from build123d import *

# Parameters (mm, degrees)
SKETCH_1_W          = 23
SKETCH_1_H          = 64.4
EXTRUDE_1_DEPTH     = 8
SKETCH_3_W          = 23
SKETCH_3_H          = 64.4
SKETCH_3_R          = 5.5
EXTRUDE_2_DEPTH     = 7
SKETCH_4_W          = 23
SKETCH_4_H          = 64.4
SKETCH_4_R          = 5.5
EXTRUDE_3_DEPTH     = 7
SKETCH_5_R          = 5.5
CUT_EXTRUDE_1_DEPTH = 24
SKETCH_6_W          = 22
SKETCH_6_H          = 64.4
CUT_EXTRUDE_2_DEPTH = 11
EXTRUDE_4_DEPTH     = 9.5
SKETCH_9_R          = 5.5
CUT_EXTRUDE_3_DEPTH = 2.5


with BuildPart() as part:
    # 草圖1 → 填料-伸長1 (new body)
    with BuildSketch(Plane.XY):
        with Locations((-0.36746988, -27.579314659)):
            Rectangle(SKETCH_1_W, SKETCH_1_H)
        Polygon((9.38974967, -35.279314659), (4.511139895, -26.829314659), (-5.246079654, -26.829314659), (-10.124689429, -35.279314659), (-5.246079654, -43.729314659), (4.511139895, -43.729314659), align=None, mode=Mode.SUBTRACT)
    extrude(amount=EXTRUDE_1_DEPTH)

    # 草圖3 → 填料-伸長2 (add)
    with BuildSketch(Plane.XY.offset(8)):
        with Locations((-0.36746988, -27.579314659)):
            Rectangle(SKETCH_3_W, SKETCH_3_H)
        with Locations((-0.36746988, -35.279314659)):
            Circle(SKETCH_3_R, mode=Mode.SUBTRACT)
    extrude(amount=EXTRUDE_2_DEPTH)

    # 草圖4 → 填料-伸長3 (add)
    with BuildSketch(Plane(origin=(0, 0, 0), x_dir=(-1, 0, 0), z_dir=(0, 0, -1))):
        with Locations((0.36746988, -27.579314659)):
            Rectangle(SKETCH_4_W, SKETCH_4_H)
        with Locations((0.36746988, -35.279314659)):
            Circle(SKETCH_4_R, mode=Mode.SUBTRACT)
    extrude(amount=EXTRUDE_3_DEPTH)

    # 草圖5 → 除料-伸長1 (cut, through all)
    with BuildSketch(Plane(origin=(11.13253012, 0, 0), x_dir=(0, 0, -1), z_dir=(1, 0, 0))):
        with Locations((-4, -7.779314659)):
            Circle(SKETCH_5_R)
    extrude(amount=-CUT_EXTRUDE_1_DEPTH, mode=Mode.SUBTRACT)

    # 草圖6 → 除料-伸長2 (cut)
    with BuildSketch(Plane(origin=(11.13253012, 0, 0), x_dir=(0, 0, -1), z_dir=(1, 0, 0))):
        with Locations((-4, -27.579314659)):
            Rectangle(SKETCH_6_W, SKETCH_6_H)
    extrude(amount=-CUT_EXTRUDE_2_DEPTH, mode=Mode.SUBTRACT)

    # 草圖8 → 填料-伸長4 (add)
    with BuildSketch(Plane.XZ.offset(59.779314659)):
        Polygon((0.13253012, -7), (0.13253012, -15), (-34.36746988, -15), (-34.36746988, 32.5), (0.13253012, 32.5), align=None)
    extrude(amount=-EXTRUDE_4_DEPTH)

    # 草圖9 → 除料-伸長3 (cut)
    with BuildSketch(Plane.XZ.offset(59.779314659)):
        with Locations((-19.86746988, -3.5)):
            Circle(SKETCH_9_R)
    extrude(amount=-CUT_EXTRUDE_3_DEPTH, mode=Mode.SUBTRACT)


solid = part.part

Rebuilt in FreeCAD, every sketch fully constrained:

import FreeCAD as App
import Part
import Sketcher
Q = App.Units.Quantity

doc = App.newDocument("Part")
body = doc.addObject("PartDesign::Body", "Body")

# Sketch on XY plane
sketch1 = body.newObject("Sketcher::SketchObject", "Sketch")
sketch1.AttachmentSupport = (doc.getObject("XY_Plane"), [""])
sketch1.MapMode = "FlatFace"
sketch1.addGeometry(Part.LineSegment(App.Vector(-12, 5, 0), App.Vector(-12, -60, 0)), False)
sketch1.addGeometry(Part.LineSegment(App.Vector(-12, -60, 0), App.Vector(11, -60, 0)), False)
sketch1.addGeometry(Part.LineSegment(App.Vector(11, -60, 0), App.Vector(11, 5, 0)), False)
sketch1.addGeometry(Part.LineSegment(App.Vector(11, 5, 0), App.Vector(-12, 5, 0)), False)
sketch1.addGeometry(Part.LineSegment(App.Vector(5, -27, 0), App.Vector(9, -35, 0)), False)
sketch1.addGeometry(Part.LineSegment(App.Vector(9, -35, 0), App.Vector(5, -44, 0)), False)
sketch1.addGeometry(Part.LineSegment(App.Vector(5, -44, 0), App.Vector(-5, -44, 0)), False)
sketch1.addGeometry(Part.LineSegment(App.Vector(-5, -44, 0), App.Vector(-10, -35, 0)), False)
sketch1.addGeometry(Part.LineSegment(App.Vector(-10, -35, 0), App.Vector(-5, -27, 0)), False)
sketch1.addGeometry(Part.LineSegment(App.Vector(-5, -27, 0), App.Vector(5, -27, 0)), False)
sketch1.addConstraint(Sketcher.Constraint("Coincident", 0, 2, 1, 1))
sketch1.addConstraint(Sketcher.Constraint("Coincident", 1, 2, 2, 1))
sketch1.addConstraint(Sketcher.Constraint("Coincident", 2, 2, 3, 1))
sketch1.addConstraint(Sketcher.Constraint("Coincident", 3, 2, 0, 1))
sketch1.addConstraint(Sketcher.Constraint("Coincident", 4, 2, 5, 1))
sketch1.addConstraint(Sketcher.Constraint("Coincident", 5, 2, 6, 1))
sketch1.addConstraint(Sketcher.Constraint("Coincident", 6, 2, 7, 1))
sketch1.addConstraint(Sketcher.Constraint("Coincident", 7, 2, 8, 1))
sketch1.addConstraint(Sketcher.Constraint("Coincident", 8, 2, 9, 1))
sketch1.addConstraint(Sketcher.Constraint("Coincident", 9, 2, 4, 1))
sketch1.addConstraint(Sketcher.Constraint("Vertical", 0))
sketch1.addConstraint(Sketcher.Constraint("Horizontal", 1))
sketch1.addConstraint(Sketcher.Constraint("Vertical", 2))
sketch1.addConstraint(Sketcher.Constraint("Horizontal", 3))
sketch1.addConstraint(Sketcher.Constraint("Horizontal", 6))
sketch1.addConstraint(Sketcher.Constraint("Horizontal", 9))
sketch1.addConstraint(Sketcher.Constraint("Parallel", 4, 7))
sketch1.addConstraint(Sketcher.Constraint("Parallel", 5, 8))
sketch1.addConstraint(Sketcher.Constraint("Horizontal", 4, 2, 7, 2))
sketch1.addConstraint(Sketcher.Constraint("Vertical", 6, 2, 8, 2))
sketch1.addConstraint(Sketcher.Constraint("Vertical", 5, 2, 9, 2))
sketch1.addConstraint(Sketcher.Constraint("DistanceX", 1, 1, 1, 2, 23.0))
sketch1.addConstraint(Sketcher.Constraint("Angle", 4, Q("-60 deg")))
sketch1.addConstraint(Sketcher.Constraint("DistanceY", 0, 2, 0, 1, 64.4))
sketch1.addConstraint(Sketcher.Constraint("DistanceY", 1, 2, 4, 2, 24.5))
sketch1.addConstraint(Sketcher.Constraint("DistanceY", 6, 2, 8, 2, 16.9))
sketch1.addConstraint(Sketcher.Constraint("DistanceX", 6, 2, 6, 1, 9.75722))
sketch1.addConstraint(Sketcher.Constraint("DistanceX", 0, 2, -1, 1, 11.86747))
sketch1.addConstraint(Sketcher.Constraint("DistanceX", -1, 1, 4, 2, 9.38975))
sketch1.addConstraint(Sketcher.Constraint("DistanceY", 0, 2, -1, 1, 59.779315))
pad1 = body.newObject("PartDesign::Pad", "Pad")
pad1.Profile = sketch1
pad1.Length = 8

# Sketch on XY plane
sketch2 = body.newObject("Sketcher::SketchObject", "Sketch001")
sketch2.AttachmentSupport = (doc.getObject("XY_Plane"), [""])
sketch2.MapMode = "FlatFace"
sketch2.AttachmentOffset = App.Placement(App.Vector(0, 0, 8), App.Rotation())
sketch2.addGeometry(Part.LineSegment(App.Vector(-12, 5, 0), App.Vector(-12, -60, 0)), False)
sketch2.addGeometry(Part.LineSegment(App.Vector(-12, -60, 0), App.Vector(11, -60, 0)), False)
sketch2.addGeometry(Part.LineSegment(App.Vector(11, -60, 0), App.Vector(11, 5, 0)), False)
sketch2.addGeometry(Part.LineSegment(App.Vector(11, 5, 0), App.Vector(-12, 5, 0)), False)
sketch2.addGeometry(Part.Circle(App.Vector(0, -35, 0), App.Vector(0, 0, 1), 6), False)
sketch2.addConstraint(Sketcher.Constraint("Coincident", 0, 2, 1, 1))
sketch2.addConstraint(Sketcher.Constraint("Coincident", 1, 2, 2, 1))
sketch2.addConstraint(Sketcher.Constraint("Coincident", 2, 2, 3, 1))
sketch2.addConstraint(Sketcher.Constraint("Coincident", 3, 2, 0, 1))
sketch2.addConstraint(Sketcher.Constraint("Vertical", 0))
sketch2.addConstraint(Sketcher.Constraint("Horizontal", 1))
sketch2.addConstraint(Sketcher.Constraint("Vertical", 2))
sketch2.addConstraint(Sketcher.Constraint("Horizontal", 3))
sketch2.addConstraint(Sketcher.Constraint("Diameter", 4, 11.0))
sketch2.addConstraint(Sketcher.Constraint("DistanceX", 1, 1, 1, 2, 23.0))
sketch2.addConstraint(Sketcher.Constraint("DistanceY", 0, 2, 0, 1, 64.4))
sketch2.addConstraint(Sketcher.Constraint("DistanceX", 0, 2, 4, 3, 11.5))
sketch2.addConstraint(Sketcher.Constraint("DistanceY", 0, 2, 4, 3, 24.5))
sketch2.addConstraint(Sketcher.Constraint("DistanceX", 4, 3, -1, 1, 0.36747))
sketch2.addConstraint(Sketcher.Constraint("DistanceY", 4, 3, -1, 1, 35.279315))
pad2 = body.newObject("PartDesign::Pad", "Pad001")
pad2.Profile = sketch2
pad2.Length = 7

# Sketch on XY plane
sketch3 = body.newObject("Sketcher::SketchObject", "Sketch002")
sketch3.AttachmentSupport = (doc.getObject("XY_Plane"), [""])
sketch3.MapMode = "FlatFace"
sketch3.addGeometry(Part.LineSegment(App.Vector(11, 5, 0), App.Vector(11, -60, 0)), False)
sketch3.addGeometry(Part.LineSegment(App.Vector(11, -60, 0), App.Vector(-12, -60, 0)), False)
sketch3.addGeometry(Part.LineSegment(App.Vector(-12, -60, 0), App.Vector(-12, 5, 0)), False)
sketch3.addGeometry(Part.LineSegment(App.Vector(-12, 5, 0), App.Vector(11, 5, 0)), False)
sketch3.addGeometry(Part.Circle(App.Vector(0, -35, 0), App.Vector(0, 0, 1), 6), False)
sketch3.addConstraint(Sketcher.Constraint("Coincident", 0, 2, 1, 1))
sketch3.addConstraint(Sketcher.Constraint("Coincident", 1, 2, 2, 1))
sketch3.addConstraint(Sketcher.Constraint("Coincident", 2, 2, 3, 1))
sketch3.addConstraint(Sketcher.Constraint("Coincident", 3, 2, 0, 1))
sketch3.addConstraint(Sketcher.Constraint("Vertical", 0))
sketch3.addConstraint(Sketcher.Constraint("Horizontal", 1))
sketch3.addConstraint(Sketcher.Constraint("Vertical", 2))
sketch3.addConstraint(Sketcher.Constraint("Horizontal", 3))
sketch3.addConstraint(Sketcher.Constraint("Diameter", 4, 11.0))
sketch3.addConstraint(Sketcher.Constraint("DistanceX", 1, 2, 1, 1, 23.0))
sketch3.addConstraint(Sketcher.Constraint("DistanceY", 0, 2, 0, 1, 64.4))
sketch3.addConstraint(Sketcher.Constraint("DistanceX", 4, 3, 0, 2, 11.5))
sketch3.addConstraint(Sketcher.Constraint("DistanceY", 0, 2, 4, 3, 24.5))
sketch3.addConstraint(Sketcher.Constraint("DistanceX", 4, 3, -1, 1, 0.36747))
sketch3.addConstraint(Sketcher.Constraint("DistanceY", 4, 3, -1, 1, 35.279315))
pad3 = body.newObject("PartDesign::Pad", "Pad002")
pad3.Profile = sketch3
pad3.Length = 7
pad3.Reversed = True

# Sketch on YZ plane
sketch4 = body.newObject("Sketcher::SketchObject", "Sketch003")
sketch4.AttachmentSupport = (doc.getObject("YZ_Plane"), [""])
sketch4.MapMode = "FlatFace"
sketch4.AttachmentOffset = App.Placement(App.Vector(0, 0, 11.13253), App.Rotation())
sketch4.addGeometry(Part.Circle(App.Vector(-8, 4, 0), App.Vector(0, 0, 1), 6), False)
sketch4.addConstraint(Sketcher.Constraint("Diameter", 0, 11.0))
sketch4.addConstraint(Sketcher.Constraint("DistanceY", -1, 1, 0, 3, 4.0))
sketch4.addConstraint(Sketcher.Constraint("DistanceX", 0, 3, -1, 1, 7.779315))
pocket1 = body.newObject("PartDesign::Pocket", "Pocket")
pocket1.Profile = sketch4
pocket1.Type = "ThroughAll"

# Sketch on YZ plane
sketch5 = body.newObject("Sketcher::SketchObject", "Sketch004")
sketch5.AttachmentSupport = (doc.getObject("YZ_Plane"), [""])
sketch5.MapMode = "FlatFace"
sketch5.AttachmentOffset = App.Placement(App.Vector(0, 0, 11.13253), App.Rotation())
sketch5.addGeometry(Part.LineSegment(App.Vector(5, 15, 0), App.Vector(-60, 15, 0)), False)
sketch5.addGeometry(Part.LineSegment(App.Vector(-60, 15, 0), App.Vector(-60, -7, 0)), False)
sketch5.addGeometry(Part.LineSegment(App.Vector(-60, -7, 0), App.Vector(5, -7, 0)), False)
sketch5.addGeometry(Part.LineSegment(App.Vector(5, -7, 0), App.Vector(5, 15, 0)), False)
sketch5.addConstraint(Sketcher.Constraint("Coincident", 0, 2, 1, 1))
sketch5.addConstraint(Sketcher.Constraint("Coincident", 1, 2, 2, 1))
sketch5.addConstraint(Sketcher.Constraint("Coincident", 2, 2, 3, 1))
sketch5.addConstraint(Sketcher.Constraint("Coincident", 3, 2, 0, 1))
sketch5.addConstraint(Sketcher.Constraint("Horizontal", 0))
sketch5.addConstraint(Sketcher.Constraint("Vertical", 1))
sketch5.addConstraint(Sketcher.Constraint("Horizontal", 2))
sketch5.addConstraint(Sketcher.Constraint("Vertical", 3))
sketch5.addConstraint(Sketcher.Constraint("DistanceY", 1, 2, 1, 1, 22.0))
sketch5.addConstraint(Sketcher.Constraint("DistanceX", 0, 2, 0, 1, 64.4))
sketch5.addConstraint(Sketcher.Constraint("DistanceY", -1, 1, 0, 2, 15.0))
sketch5.addConstraint(Sketcher.Constraint("DistanceX", 0, 2, -1, 1, 59.779315))
pocket2 = body.newObject("PartDesign::Pocket", "Pocket001")
pocket2.Profile = sketch5
pocket2.Length = 11

# Sketch on XZ plane
sketch6 = body.newObject("Sketcher::SketchObject", "Sketch005")
sketch6.AttachmentSupport = (doc.getObject("XZ_Plane"), [""])
sketch6.MapMode = "FlatFace"
sketch6.AttachmentOffset = App.Placement(App.Vector(0, 0, 59.779315), App.Rotation())
sketch6.addGeometry(Part.LineSegment(App.Vector(0, -15, 0), App.Vector(0, 32, 0)), False)
sketch6.addGeometry(Part.LineSegment(App.Vector(0, 32, 0), App.Vector(-34, 32, 0)), False)
sketch6.addGeometry(Part.LineSegment(App.Vector(-34, 32, 0), App.Vector(-34, -15, 0)), False)
sketch6.addGeometry(Part.LineSegment(App.Vector(-34, -15, 0), App.Vector(0, -15, 0)), False)
sketch6.addConstraint(Sketcher.Constraint("Coincident", 0, 2, 1, 1))
sketch6.addConstraint(Sketcher.Constraint("Coincident", 1, 2, 2, 1))
sketch6.addConstraint(Sketcher.Constraint("Coincident", 2, 2, 3, 1))
sketch6.addConstraint(Sketcher.Constraint("Coincident", 3, 2, 0, 1))
sketch6.addConstraint(Sketcher.Constraint("Vertical", 0))
sketch6.addConstraint(Sketcher.Constraint("Horizontal", 1))
sketch6.addConstraint(Sketcher.Constraint("Vertical", 2))
sketch6.addConstraint(Sketcher.Constraint("Horizontal", 3))
sketch6.addConstraint(Sketcher.Constraint("DistanceX", 1, 2, 1, 1, 34.5))
sketch6.addConstraint(Sketcher.Constraint("DistanceY", 0, 1, 0, 2, 47.5))
sketch6.addConstraint(Sketcher.Constraint("DistanceY", 2, 2, -1, 1, 15.0))
sketch6.addConstraint(Sketcher.Constraint("DistanceX", -1, 1, 0, 2, 0.13253))
pad4 = body.newObject("PartDesign::Pad", "Pad003")
pad4.Profile = sketch6
pad4.Length = 9.5
pad4.Reversed = True

# Sketch on XZ plane
sketch7 = body.newObject("Sketcher::SketchObject", "Sketch006")
sketch7.AttachmentSupport = (doc.getObject("XZ_Plane"), [""])
sketch7.MapMode = "FlatFace"
sketch7.AttachmentOffset = App.Placement(App.Vector(0, 0, 59.779315), App.Rotation())
sketch7.addGeometry(Part.Circle(App.Vector(-20, -4, 0), App.Vector(0, 0, 1), 6), False)
sketch7.addConstraint(Sketcher.Constraint("Diameter", 0, 11.0))
sketch7.addConstraint(Sketcher.Constraint("DistanceY", 0, 3, -1, 1, 3.5))
sketch7.addConstraint(Sketcher.Constraint("DistanceX", 0, 3, -1, 1, 19.86747))
pocket3 = body.newObject("PartDesign::Pocket", "Pocket002")
pocket3.Profile = sketch7
pocket3.Length = 2.5

doc.recompute()
